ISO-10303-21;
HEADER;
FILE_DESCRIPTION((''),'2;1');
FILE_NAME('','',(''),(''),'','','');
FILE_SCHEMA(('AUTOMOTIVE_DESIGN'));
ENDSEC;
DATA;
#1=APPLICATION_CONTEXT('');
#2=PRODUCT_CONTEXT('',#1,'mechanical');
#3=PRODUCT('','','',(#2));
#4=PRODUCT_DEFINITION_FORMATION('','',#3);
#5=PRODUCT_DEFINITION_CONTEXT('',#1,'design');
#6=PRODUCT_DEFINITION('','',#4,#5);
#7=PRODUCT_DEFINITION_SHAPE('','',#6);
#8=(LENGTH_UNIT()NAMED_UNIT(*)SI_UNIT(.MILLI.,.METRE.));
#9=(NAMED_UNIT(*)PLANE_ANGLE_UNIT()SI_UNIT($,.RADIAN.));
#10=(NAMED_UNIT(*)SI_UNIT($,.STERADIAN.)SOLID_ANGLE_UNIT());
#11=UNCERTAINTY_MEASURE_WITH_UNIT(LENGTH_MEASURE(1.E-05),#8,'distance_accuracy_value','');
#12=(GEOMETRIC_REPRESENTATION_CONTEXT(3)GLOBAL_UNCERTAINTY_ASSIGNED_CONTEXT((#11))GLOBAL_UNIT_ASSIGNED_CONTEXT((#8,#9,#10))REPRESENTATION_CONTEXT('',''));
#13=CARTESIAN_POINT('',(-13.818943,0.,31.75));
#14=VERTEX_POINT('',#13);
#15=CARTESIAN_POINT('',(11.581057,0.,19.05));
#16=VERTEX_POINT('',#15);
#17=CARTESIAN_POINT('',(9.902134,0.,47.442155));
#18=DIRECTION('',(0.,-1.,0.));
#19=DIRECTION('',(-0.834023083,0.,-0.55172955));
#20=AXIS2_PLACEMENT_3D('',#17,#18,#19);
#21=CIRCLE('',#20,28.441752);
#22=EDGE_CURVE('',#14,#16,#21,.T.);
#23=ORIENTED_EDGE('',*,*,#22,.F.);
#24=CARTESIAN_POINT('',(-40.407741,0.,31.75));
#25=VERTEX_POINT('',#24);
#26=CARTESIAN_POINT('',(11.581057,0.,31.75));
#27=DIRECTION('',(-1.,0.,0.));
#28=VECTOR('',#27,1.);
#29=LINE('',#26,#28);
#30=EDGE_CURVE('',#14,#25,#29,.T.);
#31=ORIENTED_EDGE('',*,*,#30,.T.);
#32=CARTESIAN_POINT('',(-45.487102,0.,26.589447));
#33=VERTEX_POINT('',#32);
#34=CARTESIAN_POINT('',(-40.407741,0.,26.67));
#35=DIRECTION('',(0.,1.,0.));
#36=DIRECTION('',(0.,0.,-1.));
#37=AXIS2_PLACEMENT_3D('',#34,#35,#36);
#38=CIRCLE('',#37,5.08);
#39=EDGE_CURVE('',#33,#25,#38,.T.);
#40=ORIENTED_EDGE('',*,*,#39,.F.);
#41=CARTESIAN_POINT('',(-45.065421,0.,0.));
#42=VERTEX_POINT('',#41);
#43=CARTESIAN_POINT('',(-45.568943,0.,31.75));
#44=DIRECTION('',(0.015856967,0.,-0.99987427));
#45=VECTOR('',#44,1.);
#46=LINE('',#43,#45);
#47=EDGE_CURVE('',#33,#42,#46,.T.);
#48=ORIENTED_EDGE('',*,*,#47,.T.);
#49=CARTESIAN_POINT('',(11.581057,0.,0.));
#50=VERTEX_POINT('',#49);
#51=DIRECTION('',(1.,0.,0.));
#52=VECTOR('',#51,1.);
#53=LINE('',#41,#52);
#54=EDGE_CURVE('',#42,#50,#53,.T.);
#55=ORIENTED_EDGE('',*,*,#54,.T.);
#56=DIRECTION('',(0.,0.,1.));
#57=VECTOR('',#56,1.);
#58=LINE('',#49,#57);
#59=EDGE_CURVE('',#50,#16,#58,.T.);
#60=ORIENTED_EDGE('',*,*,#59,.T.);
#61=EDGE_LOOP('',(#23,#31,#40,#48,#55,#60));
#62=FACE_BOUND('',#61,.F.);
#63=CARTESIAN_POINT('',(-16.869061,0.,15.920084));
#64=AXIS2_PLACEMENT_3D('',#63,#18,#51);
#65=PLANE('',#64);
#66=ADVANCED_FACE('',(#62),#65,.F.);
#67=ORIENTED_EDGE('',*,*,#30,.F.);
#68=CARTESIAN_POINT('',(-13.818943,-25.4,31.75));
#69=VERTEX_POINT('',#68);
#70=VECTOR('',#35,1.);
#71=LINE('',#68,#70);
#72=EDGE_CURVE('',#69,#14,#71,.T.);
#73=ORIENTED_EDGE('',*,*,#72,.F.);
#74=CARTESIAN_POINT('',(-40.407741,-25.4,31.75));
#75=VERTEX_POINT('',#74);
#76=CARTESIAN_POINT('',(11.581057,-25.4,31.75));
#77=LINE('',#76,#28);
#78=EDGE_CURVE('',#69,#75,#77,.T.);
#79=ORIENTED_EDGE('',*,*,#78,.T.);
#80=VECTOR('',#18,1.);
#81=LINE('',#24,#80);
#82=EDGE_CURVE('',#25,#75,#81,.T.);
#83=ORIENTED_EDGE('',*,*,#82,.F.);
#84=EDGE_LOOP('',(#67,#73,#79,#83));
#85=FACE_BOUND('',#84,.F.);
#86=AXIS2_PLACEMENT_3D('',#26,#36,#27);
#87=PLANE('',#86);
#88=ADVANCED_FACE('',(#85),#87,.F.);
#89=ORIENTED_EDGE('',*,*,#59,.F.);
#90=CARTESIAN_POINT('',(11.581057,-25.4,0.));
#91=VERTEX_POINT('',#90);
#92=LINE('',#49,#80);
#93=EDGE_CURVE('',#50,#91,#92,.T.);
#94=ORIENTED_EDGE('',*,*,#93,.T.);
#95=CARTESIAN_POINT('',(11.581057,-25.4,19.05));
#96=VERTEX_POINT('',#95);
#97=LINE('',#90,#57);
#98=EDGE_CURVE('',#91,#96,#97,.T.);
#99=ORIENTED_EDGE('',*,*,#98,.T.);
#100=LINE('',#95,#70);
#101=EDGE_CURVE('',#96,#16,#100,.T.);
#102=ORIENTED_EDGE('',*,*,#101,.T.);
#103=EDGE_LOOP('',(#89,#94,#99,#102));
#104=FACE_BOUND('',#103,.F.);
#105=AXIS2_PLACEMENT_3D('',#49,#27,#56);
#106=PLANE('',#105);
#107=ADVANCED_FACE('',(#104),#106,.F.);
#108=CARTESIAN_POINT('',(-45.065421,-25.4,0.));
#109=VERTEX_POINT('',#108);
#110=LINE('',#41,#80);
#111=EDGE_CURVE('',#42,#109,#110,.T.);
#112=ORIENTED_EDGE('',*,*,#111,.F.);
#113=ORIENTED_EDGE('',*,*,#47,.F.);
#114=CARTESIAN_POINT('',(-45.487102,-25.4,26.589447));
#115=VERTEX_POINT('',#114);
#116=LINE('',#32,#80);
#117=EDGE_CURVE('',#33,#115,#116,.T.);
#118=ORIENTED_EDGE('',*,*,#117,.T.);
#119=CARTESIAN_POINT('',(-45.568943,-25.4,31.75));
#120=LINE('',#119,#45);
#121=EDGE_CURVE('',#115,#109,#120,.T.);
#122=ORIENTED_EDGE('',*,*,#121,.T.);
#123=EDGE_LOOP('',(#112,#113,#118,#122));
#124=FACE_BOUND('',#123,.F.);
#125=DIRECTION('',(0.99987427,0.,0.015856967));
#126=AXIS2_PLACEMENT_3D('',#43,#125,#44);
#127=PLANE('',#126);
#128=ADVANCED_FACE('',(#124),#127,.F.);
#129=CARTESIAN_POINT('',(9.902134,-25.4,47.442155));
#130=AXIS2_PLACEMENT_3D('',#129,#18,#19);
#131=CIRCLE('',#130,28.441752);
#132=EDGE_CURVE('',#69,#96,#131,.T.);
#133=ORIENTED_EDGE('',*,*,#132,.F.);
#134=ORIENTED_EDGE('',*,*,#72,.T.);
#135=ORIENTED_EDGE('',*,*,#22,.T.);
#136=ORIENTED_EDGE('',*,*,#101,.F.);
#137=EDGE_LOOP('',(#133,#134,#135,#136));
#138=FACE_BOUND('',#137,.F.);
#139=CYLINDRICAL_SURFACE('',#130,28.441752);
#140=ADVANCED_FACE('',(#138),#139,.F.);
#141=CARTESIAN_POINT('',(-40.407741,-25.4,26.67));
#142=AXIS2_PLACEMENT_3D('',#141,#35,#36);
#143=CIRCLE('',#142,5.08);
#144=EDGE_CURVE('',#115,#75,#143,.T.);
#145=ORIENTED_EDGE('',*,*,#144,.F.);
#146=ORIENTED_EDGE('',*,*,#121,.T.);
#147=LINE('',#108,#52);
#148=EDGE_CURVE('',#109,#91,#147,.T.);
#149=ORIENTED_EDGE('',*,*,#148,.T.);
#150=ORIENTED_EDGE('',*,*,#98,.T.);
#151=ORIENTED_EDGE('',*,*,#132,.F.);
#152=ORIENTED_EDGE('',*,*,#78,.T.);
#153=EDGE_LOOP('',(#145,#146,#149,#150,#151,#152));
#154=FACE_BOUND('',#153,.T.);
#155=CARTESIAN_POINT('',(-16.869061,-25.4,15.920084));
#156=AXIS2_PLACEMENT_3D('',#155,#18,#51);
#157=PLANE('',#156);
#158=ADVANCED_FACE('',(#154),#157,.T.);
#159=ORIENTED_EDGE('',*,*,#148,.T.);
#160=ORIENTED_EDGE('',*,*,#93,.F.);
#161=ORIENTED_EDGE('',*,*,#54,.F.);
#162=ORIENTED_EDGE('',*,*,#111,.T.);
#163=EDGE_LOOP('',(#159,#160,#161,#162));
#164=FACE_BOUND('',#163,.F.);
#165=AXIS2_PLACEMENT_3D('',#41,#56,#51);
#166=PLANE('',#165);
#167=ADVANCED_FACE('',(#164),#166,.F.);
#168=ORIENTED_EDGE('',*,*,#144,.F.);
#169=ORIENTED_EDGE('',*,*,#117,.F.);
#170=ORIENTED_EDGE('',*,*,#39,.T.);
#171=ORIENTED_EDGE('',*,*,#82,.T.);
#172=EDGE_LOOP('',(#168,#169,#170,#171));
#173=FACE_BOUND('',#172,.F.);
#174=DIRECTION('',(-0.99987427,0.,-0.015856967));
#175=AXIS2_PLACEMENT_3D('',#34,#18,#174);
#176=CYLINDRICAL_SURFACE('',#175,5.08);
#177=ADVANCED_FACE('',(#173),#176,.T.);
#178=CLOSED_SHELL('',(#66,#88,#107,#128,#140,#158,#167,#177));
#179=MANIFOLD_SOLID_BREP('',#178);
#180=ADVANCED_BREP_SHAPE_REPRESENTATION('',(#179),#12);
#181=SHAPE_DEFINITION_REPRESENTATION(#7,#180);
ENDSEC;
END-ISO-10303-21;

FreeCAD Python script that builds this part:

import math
import FreeCAD as App
import Part
import Sketcher
from FreeCAD import Vector
Q = App.Units.Quantity


def edges_at(feature, points):
    """Names of the edges that pass closest to the given points."""
    edges = feature.Shape.Edges
    near = lambda p: min(range(len(edges)), key=lambda i: edges[i].distToShape(Part.Vertex(*p))[0])
    return sorted({f"Edge{near(p) + 1}" for p in points})


def add_polygon(sketch, points):
    """Adds a closed chain of lines whose ends are joined by coincident constraints."""
    first, n = sketch.GeometryCount, len(points)
    for a, b in zip(points, points[1:] + points[:1]):
        sketch.addGeometry(Part.LineSegment(App.Vector(*a, 0), App.Vector(*b, 0)), False)
    for i in range(n):
        sketch.addConstraint(Sketcher.Constraint("Coincident", first + i, 2, first + (i + 1) % n, 1))

doc = App.newDocument("Part")
body = doc.addObject("PartDesign::Body", "Body")

# Sketch on XZ plane
sketch1 = doc.addObject("Sketcher::SketchObject", "Sketch")
body.addObject(sketch1)
sketch1.AttachmentSupport = (doc.XZ_Plane, [""])
sketch1.MapMode = "FlatFace"
add_polygon(sketch1, [(-46, 32), (-45, 0), (12, 0), (12, 32)])  # lines 0-3
sketch1.addConstraint([
    Sketcher.Constraint("Horizontal", 1),
    Sketcher.Constraint("Vertical", 2),
    Sketcher.Constraint("Horizontal", 3),
    Sketcher.Constraint("PointOnObject", 0, 2, -1),
    Sketcher.Constraint("DistanceX", 3, 2, 3, 1, Q("2.25 in")),
    Sketcher.Constraint("DistanceY", 2, 1, 2, 2, Q("1.25 in")),
    Sketcher.Constraint("DistanceX", 1, 1, 1, 2, 56.646478),
    Sketcher.Constraint("DistanceX", 0, 2, -1, 1, 45.065421),
])
pad1 = doc.addObject("PartDesign::Pad", "Pad")
body.addObject(pad1)
pad1.Profile = sketch1
pad1.Length = Q("1 in")

# Sketch on XZ plane
sketch2 = doc.addObject("Sketcher::SketchObject", "Sketch001")
body.addObject(sketch2)
sketch2.AttachmentSupport = (doc.XZ_Plane, [""])
sketch2.MapMode = "FlatFace"
sketch2.AttachmentOffset = App.Placement(Vector(0, 0, 1 * 25.4), App.Rotation())
sketch2.addGeometry([
    Part.LineSegment(Vector(12, 32, 0), Vector(-14, 32, 0)),
    Part.ArcOfCircle(Part.Circle(Vector(10, 47, 0), Vector(0, 0, 1), 28), math.radians(-147), math.radians(-87)),
    Part.LineSegment(Vector(12, 19, 0), Vector(12, 32, 0)),
], False)
sketch2.addConstraint([
    Sketcher.Constraint("Coincident", 0, 2, 1, 1),
    Sketcher.Constraint("Coincident", 1, 2, 2, 1),
    Sketcher.Constraint("Coincident", 2, 2, 0, 1),
    Sketcher.Constraint("Horizontal", 0),
    Sketcher.Constraint("Vertical", 2),
    Sketcher.Constraint("DistanceX", 0, 2, 0, 1, Q("1 in")),
    Sketcher.Constraint("DistanceY", 2, 1, 2, 2, Q("0.5 in")),
    Sketcher.Constraint("DistanceY", -1, 1, 0, 2, Q("1.25 in")),
    Sketcher.Constraint("Radius", 1, 28.441752),
    Sketcher.Constraint("DistanceX", -1, 1, 1, 3, 9.902134),
])
pocket1 = doc.addObject("PartDesign::Pocket", "Pocket")
body.addObject(pocket1)
pocket1.Profile = sketch2
pocket1.Length = Q("1 in")
doc.recompute()

fillet = doc.addObject("PartDesign::Fillet", "Fillet")
body.addObject(fillet)
fillet.Base = (pocket1, edges_at(pocket1, [(-45.569, -12.7, 31.75)]))
fillet.Radius = Q("0.2 in")

doc.recompute()
